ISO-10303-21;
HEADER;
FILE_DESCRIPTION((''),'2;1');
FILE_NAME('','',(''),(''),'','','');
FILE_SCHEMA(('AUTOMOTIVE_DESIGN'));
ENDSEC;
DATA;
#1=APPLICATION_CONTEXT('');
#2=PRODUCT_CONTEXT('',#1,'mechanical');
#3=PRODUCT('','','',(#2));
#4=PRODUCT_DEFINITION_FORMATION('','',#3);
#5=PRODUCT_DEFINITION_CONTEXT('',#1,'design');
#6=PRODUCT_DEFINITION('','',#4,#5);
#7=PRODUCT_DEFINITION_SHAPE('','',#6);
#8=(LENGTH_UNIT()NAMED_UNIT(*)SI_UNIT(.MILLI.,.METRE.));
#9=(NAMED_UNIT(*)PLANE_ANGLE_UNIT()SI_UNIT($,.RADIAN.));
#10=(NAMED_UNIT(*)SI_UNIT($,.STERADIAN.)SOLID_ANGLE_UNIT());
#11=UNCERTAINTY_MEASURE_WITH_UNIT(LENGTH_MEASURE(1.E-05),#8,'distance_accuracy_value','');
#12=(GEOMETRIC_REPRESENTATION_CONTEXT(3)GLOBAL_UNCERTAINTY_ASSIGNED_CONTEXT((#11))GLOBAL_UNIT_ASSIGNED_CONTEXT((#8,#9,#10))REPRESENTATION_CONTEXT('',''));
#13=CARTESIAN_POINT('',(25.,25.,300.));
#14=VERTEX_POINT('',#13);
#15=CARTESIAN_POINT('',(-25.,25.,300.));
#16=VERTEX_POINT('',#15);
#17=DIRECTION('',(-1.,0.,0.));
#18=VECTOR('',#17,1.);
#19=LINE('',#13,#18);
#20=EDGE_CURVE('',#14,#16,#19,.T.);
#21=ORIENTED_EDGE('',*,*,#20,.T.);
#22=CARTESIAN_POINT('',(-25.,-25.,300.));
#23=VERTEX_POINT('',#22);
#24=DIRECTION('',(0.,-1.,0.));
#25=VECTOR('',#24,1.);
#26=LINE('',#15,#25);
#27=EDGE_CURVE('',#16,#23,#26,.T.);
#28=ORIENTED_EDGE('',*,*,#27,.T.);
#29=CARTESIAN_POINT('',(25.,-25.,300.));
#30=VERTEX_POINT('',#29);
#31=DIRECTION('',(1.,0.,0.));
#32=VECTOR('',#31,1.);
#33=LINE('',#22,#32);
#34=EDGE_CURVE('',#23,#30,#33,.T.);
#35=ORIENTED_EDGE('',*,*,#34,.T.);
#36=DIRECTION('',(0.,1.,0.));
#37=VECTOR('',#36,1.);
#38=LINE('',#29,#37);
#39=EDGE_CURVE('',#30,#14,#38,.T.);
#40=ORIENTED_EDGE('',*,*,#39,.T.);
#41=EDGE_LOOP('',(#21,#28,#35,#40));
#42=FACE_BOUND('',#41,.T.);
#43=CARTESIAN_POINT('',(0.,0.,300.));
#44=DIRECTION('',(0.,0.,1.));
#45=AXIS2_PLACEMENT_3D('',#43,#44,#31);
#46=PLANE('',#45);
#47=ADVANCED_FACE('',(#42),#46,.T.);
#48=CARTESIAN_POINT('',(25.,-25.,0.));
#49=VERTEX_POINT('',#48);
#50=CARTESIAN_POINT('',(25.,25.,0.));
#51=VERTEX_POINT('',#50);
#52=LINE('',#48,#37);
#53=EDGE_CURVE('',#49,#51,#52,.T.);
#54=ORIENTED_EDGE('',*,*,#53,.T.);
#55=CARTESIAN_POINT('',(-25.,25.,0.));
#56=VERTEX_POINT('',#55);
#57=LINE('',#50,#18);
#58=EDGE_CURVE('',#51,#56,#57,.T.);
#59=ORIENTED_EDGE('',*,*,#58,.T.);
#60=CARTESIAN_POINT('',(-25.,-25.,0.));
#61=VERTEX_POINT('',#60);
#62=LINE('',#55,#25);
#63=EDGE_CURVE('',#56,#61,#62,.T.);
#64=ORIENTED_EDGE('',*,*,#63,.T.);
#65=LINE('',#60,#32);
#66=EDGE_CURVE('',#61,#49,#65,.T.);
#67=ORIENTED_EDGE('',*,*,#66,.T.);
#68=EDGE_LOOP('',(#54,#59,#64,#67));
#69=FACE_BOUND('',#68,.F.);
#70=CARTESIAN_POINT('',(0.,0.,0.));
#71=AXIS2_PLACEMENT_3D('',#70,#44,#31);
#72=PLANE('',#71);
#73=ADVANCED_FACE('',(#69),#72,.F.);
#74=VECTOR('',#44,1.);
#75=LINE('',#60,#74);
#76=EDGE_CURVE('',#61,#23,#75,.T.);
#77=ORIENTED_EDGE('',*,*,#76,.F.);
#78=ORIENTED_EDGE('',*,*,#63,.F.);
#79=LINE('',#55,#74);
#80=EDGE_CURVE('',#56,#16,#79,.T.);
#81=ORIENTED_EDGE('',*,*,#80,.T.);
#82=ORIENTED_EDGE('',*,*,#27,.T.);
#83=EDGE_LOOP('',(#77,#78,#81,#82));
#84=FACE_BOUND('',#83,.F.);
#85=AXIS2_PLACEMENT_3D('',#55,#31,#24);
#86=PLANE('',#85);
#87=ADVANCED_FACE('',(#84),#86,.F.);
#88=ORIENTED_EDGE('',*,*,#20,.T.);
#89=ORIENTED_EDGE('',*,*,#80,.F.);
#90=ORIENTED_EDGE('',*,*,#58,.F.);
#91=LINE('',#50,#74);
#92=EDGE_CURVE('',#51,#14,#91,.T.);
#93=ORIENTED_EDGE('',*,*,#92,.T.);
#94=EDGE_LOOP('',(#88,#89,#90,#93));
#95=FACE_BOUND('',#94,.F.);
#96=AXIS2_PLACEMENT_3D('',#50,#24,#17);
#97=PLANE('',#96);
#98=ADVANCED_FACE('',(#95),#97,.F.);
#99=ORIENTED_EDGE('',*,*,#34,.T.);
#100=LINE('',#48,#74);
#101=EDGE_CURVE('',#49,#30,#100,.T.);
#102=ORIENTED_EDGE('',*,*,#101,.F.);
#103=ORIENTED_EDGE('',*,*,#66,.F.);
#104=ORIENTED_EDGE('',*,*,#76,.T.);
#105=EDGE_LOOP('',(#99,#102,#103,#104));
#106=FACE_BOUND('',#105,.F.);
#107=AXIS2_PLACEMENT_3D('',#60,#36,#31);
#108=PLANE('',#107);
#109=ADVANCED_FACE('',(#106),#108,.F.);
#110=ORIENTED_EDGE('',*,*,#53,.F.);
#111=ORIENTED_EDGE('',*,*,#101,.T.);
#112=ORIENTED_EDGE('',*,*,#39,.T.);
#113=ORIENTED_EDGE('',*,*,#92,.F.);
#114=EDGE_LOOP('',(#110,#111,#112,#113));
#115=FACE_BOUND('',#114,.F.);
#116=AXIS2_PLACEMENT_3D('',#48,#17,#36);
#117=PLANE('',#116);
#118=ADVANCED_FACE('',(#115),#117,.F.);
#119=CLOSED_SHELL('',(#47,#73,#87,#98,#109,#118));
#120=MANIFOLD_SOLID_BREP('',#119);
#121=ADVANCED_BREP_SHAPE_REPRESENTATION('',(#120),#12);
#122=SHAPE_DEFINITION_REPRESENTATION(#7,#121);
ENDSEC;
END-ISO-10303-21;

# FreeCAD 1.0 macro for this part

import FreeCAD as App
import Part
import Sketcher
from FreeCAD import Vector

doc = App.newDocument("Part")
params = doc.addObject("Spreadsheet::Sheet", "Params")
for row, (alias, value) in enumerate([
    ("sketch1_width", "50 mm"),
    ("pad1_length", "300 mm"),
], start=1):
    params.set(f"A{row}", alias)
    params.set(f"B{row}", "=" + value)
    params.setAlias(f"B{row}", alias)

body = doc.addObject("PartDesign::Body", "Body")

sketch1 = body.newObject("Sketcher::SketchObject", "Sketch")
sketch1.AttachmentSupport = (doc.getObject("XY_Plane"), [""])
sketch1.MapMode = "FlatFace"
sketch1.addGeometry([
    Part.LineSegment(Vector(25, -25, 0), Vector(25, 25, 0)),
    Part.LineSegment(Vector(25, 25, 0), Vector(-25, 25, 0)),
    Part.LineSegment(Vector(-25, 25, 0), Vector(-25, -25, 0)),
    Part.LineSegment(Vector(-25, -25, 0), Vector(25, -25, 0)),
], False)
sketch1.addConstraint([
    Sketcher.Constraint("Coincident", 0, 2, 1, 1),
    Sketcher.Constraint("Coincident", 1, 2, 2, 1),
    Sketcher.Constraint("Coincident", 2, 2, 3, 1),
    Sketcher.Constraint("Coincident", 3, 2, 0, 1),
    Sketcher.Constraint("Vertical", 0),
    Sketcher.Constraint("Horizontal", 1),
    Sketcher.Constraint("Vertical", 2),
    Sketcher.Constraint("Horizontal", 3),
    Sketcher.Constraint("Symmetric", 0, 2, 2, 2, -1, 1),
    Sketcher.Constraint("Equal", 3, 0),
    Sketcher.Constraint("DistanceX", 1, 2, 1, 1, 50.0),
])
sketch1.setExpression("Constraints[10]", "Params.sketch1_width")
pad1 = body.newObject("PartDesign::Pad", "Pad")
pad1.Profile = sketch1
pad1.setExpression("Length", "Params.pad1_length")

doc.recompute()
